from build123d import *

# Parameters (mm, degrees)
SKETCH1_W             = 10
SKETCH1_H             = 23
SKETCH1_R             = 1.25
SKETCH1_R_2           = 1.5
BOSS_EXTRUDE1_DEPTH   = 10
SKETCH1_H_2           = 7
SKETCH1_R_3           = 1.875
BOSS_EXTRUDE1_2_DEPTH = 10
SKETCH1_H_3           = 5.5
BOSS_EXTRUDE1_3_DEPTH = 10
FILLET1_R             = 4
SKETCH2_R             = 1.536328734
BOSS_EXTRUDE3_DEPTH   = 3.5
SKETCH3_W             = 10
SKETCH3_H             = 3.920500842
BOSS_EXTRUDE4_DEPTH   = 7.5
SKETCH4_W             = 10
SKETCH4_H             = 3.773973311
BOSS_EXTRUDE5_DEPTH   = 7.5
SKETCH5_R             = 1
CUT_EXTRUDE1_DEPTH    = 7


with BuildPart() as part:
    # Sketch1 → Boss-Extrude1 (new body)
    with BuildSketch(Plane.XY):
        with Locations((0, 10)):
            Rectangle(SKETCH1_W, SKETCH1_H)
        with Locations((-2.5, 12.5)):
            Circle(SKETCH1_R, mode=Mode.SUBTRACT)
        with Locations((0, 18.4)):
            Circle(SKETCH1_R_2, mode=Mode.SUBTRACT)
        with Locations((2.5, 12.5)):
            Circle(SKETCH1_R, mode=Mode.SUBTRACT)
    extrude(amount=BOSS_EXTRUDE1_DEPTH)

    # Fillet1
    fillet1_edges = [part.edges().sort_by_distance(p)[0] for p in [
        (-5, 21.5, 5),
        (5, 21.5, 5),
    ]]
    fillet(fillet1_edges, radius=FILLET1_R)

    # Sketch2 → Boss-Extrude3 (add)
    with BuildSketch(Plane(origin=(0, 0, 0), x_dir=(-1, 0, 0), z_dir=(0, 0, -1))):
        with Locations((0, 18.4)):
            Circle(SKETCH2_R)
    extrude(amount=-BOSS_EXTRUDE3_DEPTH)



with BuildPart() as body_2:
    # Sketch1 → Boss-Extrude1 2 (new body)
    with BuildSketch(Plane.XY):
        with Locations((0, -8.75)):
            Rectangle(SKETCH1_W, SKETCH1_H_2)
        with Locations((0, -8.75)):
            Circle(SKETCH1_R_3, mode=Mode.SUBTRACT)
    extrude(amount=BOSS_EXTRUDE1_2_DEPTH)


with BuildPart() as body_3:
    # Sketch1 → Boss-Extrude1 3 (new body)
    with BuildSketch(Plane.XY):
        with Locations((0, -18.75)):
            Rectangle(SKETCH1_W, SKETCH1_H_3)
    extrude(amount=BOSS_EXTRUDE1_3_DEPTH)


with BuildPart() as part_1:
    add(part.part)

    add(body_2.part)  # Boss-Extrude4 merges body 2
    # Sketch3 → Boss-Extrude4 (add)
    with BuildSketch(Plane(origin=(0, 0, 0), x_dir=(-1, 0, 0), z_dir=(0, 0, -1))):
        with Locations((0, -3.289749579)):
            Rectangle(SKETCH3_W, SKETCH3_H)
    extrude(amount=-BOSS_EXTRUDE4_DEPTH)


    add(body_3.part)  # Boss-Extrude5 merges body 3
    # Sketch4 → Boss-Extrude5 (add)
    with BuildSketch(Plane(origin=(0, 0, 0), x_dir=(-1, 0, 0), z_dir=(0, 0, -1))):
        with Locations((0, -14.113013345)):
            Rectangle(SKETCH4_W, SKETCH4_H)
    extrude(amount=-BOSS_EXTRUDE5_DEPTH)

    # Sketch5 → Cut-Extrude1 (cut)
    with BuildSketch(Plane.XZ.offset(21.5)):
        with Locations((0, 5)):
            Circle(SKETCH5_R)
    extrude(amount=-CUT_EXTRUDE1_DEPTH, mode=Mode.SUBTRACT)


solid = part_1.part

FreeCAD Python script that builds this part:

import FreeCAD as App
import Part
import Sketcher
from FreeCAD import Vector


def edges_at(feature, points):
    """Names of the edges that pass closest to the given points."""
    edges = feature.Shape.Edges
    near = lambda p: min(range(len(edges)), key=lambda i: edges[i].distToShape(Part.Vertex(*p))[0])
    return sorted({f"Edge{near(p) + 1}" for p in points})

doc = App.newDocument("Part")
params = doc.addObject("Spreadsheet::Sheet", "Params")
for row, (alias, value) in enumerate([
    ("sketch1_diameter", "3 mm"),
    ("sketch1_diameter2", "2.5 mm"),
    ("sketch1_width", "10 mm"),
    ("sketch1_height", "23 mm"),
    ("pad1_length", "10 mm"),
    ("fillet_radius", "4 mm"),
    ("pad2_length", "3.5 mm"),
    ("sketch3_diameter", "3.75 mm"),
    ("sketch3_width", "10 mm"),
    ("sketch3_height", "7 mm"),
    ("pad3_length", "10 mm"),
    ("sketch4_width", "10 mm"),
    ("sketch4_height", "5.5 mm"),
    ("pad4_length", "10 mm"),
    ("sketch5_width", "10 mm"),
    ("pad5_length", "7.5 mm"),
    ("sketch6_width", "10 mm"),
    ("pad6_length", "7.5 mm"),
    ("sketch7_diameter", "2 mm"),
    ("pocket1_length", "7 mm"),
], start=1):
    params.set(f"A{row}", alias)
    params.set(f"B{row}", "=" + value)
    params.setAlias(f"B{row}", alias)

body = doc.addObject("PartDesign::Body", "Body")

sketch1 = body.newObject("Sketcher::SketchObject", "Sketch")
sketch1.AttachmentSupport = (doc.getObject("XY_Plane"), [""])
sketch1.MapMode = "FlatFace"
sketch1.addGeometry([
    Part.LineSegment(Vector(-5, 21.5, 0), Vector(-5, -1.5, 0)),
    Part.LineSegment(Vector(-5, -1.5, 0), Vector(5, -1.5, 0)),
    Part.LineSegment(Vector(5, -1.5, 0), Vector(5, 21.5, 0)),
    Part.LineSegment(Vector(5, 21.5, 0), Vector(-5, 21.5, 0)),
    Part.Circle(Vector(-2.5, 12.5, 0), Vector(0, 0, 1), 1.2),
    Part.Circle(Vector(2.5, 12.5, 0), Vector(0, 0, 1), 1.2),
    Part.Circle(Vector(0, 18.4, 0), Vector(0, 0, 1), 1.5),
], False)
sketch1.addConstraint([
    Sketcher.Constraint("Coincident", 0, 2, 1, 1),
    Sketcher.Constraint("Coincident", 1, 2, 2, 1),
    Sketcher.Constraint("Coincident", 2, 2, 3, 1),
    Sketcher.Constraint("Coincident", 3, 2, 0, 1),
    Sketcher.Constraint("Vertical", 0),
    Sketcher.Constraint("Horizontal", 1),
    Sketcher.Constraint("Vertical", 2),
    Sketcher.Constraint("Horizontal", 3),
    Sketcher.Constraint("Equal", 4, 5),
    Sketcher.Constraint("Symmetric", 4, 3, 5, 3, -2),
    Sketcher.Constraint("PointOnObject", 6, 3, -2),
    Sketcher.Constraint("Diameter", 6, 3.0),
    Sketcher.Constraint("Diameter", 4, 2.5),
    Sketcher.Constraint("DistanceX", 1, 1, 1, 2, 10.0),
    Sketcher.Constraint("DistanceY", 0, 2, 0, 1, 23.0),
    Sketcher.Constraint("DistanceX", 0, 2, -1, 1, 5.0),
    Sketcher.Constraint("DistanceX", 4, 3, 5, 3, 5.0),
    Sketcher.Constraint("DistanceY", 0, 2, 4, 3, 14.0),
    Sketcher.Constraint("DistanceY", -1, 1, 4, 3, 12.5),
    Sketcher.Constraint("DistanceY", -1, 1, 6, 3, 18.4),
])
sketch1.setExpression("Constraints[11]", "Params.sketch1_diameter")
sketch1.setExpression("Constraints[12]", "Params.sketch1_diameter2")
sketch1.setExpression("Constraints[13]", "Params.sketch1_width")
sketch1.setExpression("Constraints[14]", "Params.sketch1_height")
pad1 = body.newObject("PartDesign::Pad", "Pad")
pad1.Profile = sketch1
pad1.setExpression("Length", "Params.pad1_length")
doc.recompute()

fillet = body.newObject("PartDesign::Fillet", "Fillet")
fillet.Base = (pad1, edges_at(pad1, [(-5, 21.5, 5), (5, 21.5, 5)]))
fillet.setExpression("Radius", "Params.fillet_radius")

sketch2 = body.newObject("Sketcher::SketchObject", "Sketch001")
sketch2.AttachmentSupport = (doc.getObject("XY_Plane"), [""])
sketch2.MapMode = "FlatFace"
sketch2.addGeometry(Part.Circle(Vector(0, 18.4, 0), Vector(0, 0, 1), 1.5), False)
sketch2.addConstraint([
    Sketcher.Constraint("PointOnObject", 0, 3, -2),
    Sketcher.Constraint("DistanceY", -1, 1, 0, 3, 18.4),
    Sketcher.Constraint("Diameter", 0, 3.072657),
])
pad2 = body.newObject("PartDesign::Pad", "Pad001")
pad2.Profile = sketch2
pad2.setExpression("Length", "Params.pad2_length")
body2 = doc.addObject("PartDesign::Body", "Body001")

sketch3 = body2.newObject("Sketcher::SketchObject", "Sketch002")
sketch3.AttachmentSupport = (doc.getObject("XY_Plane001"), [""])
sketch3.MapMode = "FlatFace"
sketch3.addGeometry([
    Part.LineSegment(Vector(-5, -5.2, 0), Vector(-5, -12.2, 0)),
    Part.LineSegment(Vector(-5, -12.2, 0), Vector(5, -12.2, 0)),
    Part.LineSegment(Vector(5, -12.2, 0), Vector(5, -5.2, 0)),
    Part.LineSegment(Vector(5, -5.2, 0), Vector(-5, -5.2, 0)),
    Part.Circle(Vector(0, -8.8, 0), Vector(0, 0, 1), 1.9),
], False)
sketch3.addConstraint([
    Sketcher.Constraint("Coincident", 0, 2, 1, 1),
    Sketcher.Constraint("Coincident", 1, 2, 2, 1),
    Sketcher.Constraint("Coincident", 2, 2, 3, 1),
    Sketcher.Constraint("Coincident", 3, 2, 0, 1),
    Sketcher.Constraint("Vertical", 0),
    Sketcher.Constraint("Horizontal", 1),
    Sketcher.Constraint("Vertical", 2),
    Sketcher.Constraint("Horizontal", 3),
    Sketcher.Constraint("PointOnObject", 4, 3, -2),
    Sketcher.Constraint("Diameter", 4, 3.75),
    Sketcher.Constraint("DistanceX", 1, 1, 1, 2, 10.0),
    Sketcher.Constraint("DistanceY", 0, 2, 0, 1, 7.0),
    Sketcher.Constraint("DistanceX", 0, 2, -1, 1, 5.0),
    Sketcher.Constraint("DistanceY", 0, 2, 4, 3, 3.5),
    Sketcher.Constraint("DistanceY", 4, 3, -1, 1, 8.75),
])
sketch3.setExpression("Constraints[9]", "Params.sketch3_diameter")
sketch3.setExpression("Constraints[10]", "Params.sketch3_width")
sketch3.setExpression("Constraints[11]", "Params.sketch3_height")
pad3 = body2.newObject("PartDesign::Pad", "Pad002")
pad3.Profile = sketch3
pad3.setExpression("Length", "Params.pad3_length")
body3 = doc.addObject("PartDesign::Body", "Body002")

sketch4 = body3.newObject("Sketcher::SketchObject", "Sketch003")
sketch4.AttachmentSupport = (doc.getObject("XY_Plane002"), [""])
sketch4.MapMode = "FlatFace"
sketch4.addGeometry([
    Part.LineSegment(Vector(-5, -16, 0), Vector(-5, -22, 0)),
    Part.LineSegment(Vector(-5, -22, 0), Vector(5, -22, 0)),
    Part.LineSegment(Vector(5, -22, 0), Vector(5, -16, 0)),
    Part.LineSegment(Vector(5, -16, 0), Vector(-5, -16, 0)),
], False)
sketch4.addConstraint([
    Sketcher.Constraint("Coincident", 0, 2, 1, 1),
    Sketcher.Constraint("Coincident", 1, 2, 2, 1),
    Sketcher.Constraint("Coincident", 2, 2, 3, 1),
    Sketcher.Constraint("Coincident", 3, 2, 0, 1),
    Sketcher.Constraint("Vertical", 0),
    Sketcher.Constraint("Horizontal", 1),
    Sketcher.Constraint("Vertical", 2),
    Sketcher.Constraint("Horizontal", 3),
    Sketcher.Constraint("DistanceX", 1, 1, 1, 2, 10.0),
    Sketcher.Constraint("DistanceY", 0, 2, 0, 1, 5.5),
    Sketcher.Constraint("DistanceX", 0, 2, -1, 1, 5.0),
    Sketcher.Constraint("DistanceY", 2, 2, -1, 1, 16.0),
])
sketch4.setExpression("Constraints[8]", "Params.sketch4_width")
sketch4.setExpression("Constraints[9]", "Params.sketch4_height")
pad4 = body3.newObject("PartDesign::Pad", "Pad003")
pad4.Profile = sketch4
pad4.setExpression("Length", "Params.pad4_length")
body.AllowCompound = True
doc.recompute()

boolean = body.newObject("PartDesign::Boolean", "Boolean")
boolean.Type = "Fuse"
boolean.addObjects([body2])

sketch5 = body.newObject("Sketcher::SketchObject", "Sketch004")
sketch5.AttachmentSupport = (doc.getObject("XY_Plane"), [""])
sketch5.MapMode = "FlatFace"
sketch5.addGeometry([
    Part.LineSegment(Vector(5, -1.3, 0), Vector(5, -5.2, 0)),
    Part.LineSegment(Vector(5, -5.2, 0), Vector(-5, -5.2, 0)),
    Part.LineSegment(Vector(-5, -5.2, 0), Vector(-5, -1.3, 0)),
    Part.LineSegment(Vector(-5, -1.3, 0), Vector(5, -1.3, 0)),
], False)
sketch5.addConstraint([
    Sketcher.Constraint("Coincident", 0, 2, 1, 1),
    Sketcher.Constraint("Coincident", 1, 2, 2, 1),
    Sketcher.Constraint("Coincident", 2, 2, 3, 1),
    Sketcher.Constraint("Coincident", 3, 2, 0, 1),
    Sketcher.Constraint("Vertical", 0),
    Sketcher.Constraint("Horizontal", 1),
    Sketcher.Constraint("Vertical", 2),
    Sketcher.Constraint("Horizontal", 3),
    Sketcher.Constraint("DistanceX", 1, 2, 1, 1, 10.0),
    Sketcher.Constraint("DistanceX", -1, 1, 0, 2, 5.0),
    Sketcher.Constraint("DistanceY", 0, 2, -1, 1, 5.25),
    Sketcher.Constraint("DistanceY", 0, 2, 0, 1, 3.920501),
])
sketch5.setExpression("Constraints[8]", "Params.sketch5_width")
pad5 = body.newObject("PartDesign::Pad", "Pad004")
pad5.Profile = sketch5
pad5.setExpression("Length", "Params.pad5_length")
doc.recompute()

boolean2 = body.newObject("PartDesign::Boolean", "Boolean001")
boolean2.Type = "Fuse"
boolean2.addObjects([body3])

sketch6 = body.newObject("Sketcher::SketchObject", "Sketch005")
sketch6.AttachmentSupport = (doc.getObject("XY_Plane"), [""])
sketch6.MapMode = "FlatFace"
sketch6.addGeometry([
    Part.LineSegment(Vector(5, -12.2, 0), Vector(5, -16, 0)),
    Part.LineSegment(Vector(5, -16, 0), Vector(-5, -16, 0)),
    Part.LineSegment(Vector(-5, -16, 0), Vector(-5, -12.2, 0)),
    Part.LineSegment(Vector(-5, -12.2, 0), Vector(5, -12.2, 0)),
], False)
sketch6.addConstraint([
    Sketcher.Constraint("Coincident", 0, 2, 1, 1),
    Sketcher.Constraint("Coincident", 1, 2, 2, 1),
    Sketcher.Constraint("Coincident", 2, 2, 3, 1),
    Sketcher.Constraint("Coincident", 3, 2, 0, 1),
    Sketcher.Constraint("Vertical", 0),
    Sketcher.Constraint("Horizontal", 1),
    Sketcher.Constraint("Vertical", 2),
    Sketcher.Constraint("Horizontal", 3),
    Sketcher.Constraint("DistanceX", 1, 2, 1, 1, 10.0),
    Sketcher.Constraint("DistanceX", -1, 1, 0, 2, 5.0),
    Sketcher.Constraint("DistanceY", 0, 2, -1, 1, 16.0),
    Sketcher.Constraint("DistanceY", 0, 2, 0, 1, 3.773973),
])
sketch6.setExpression("Constraints[8]", "Params.sketch6_width")
pad6 = body.newObject("PartDesign::Pad", "Pad005")
pad6.Profile = sketch6
pad6.setExpression("Length", "Params.pad6_length")

sketch7 = body.newObject("Sketcher::SketchObject", "Sketch006")
sketch7.AttachmentSupport = (doc.getObject("XZ_Plane"), [""])
sketch7.MapMode = "FlatFace"
sketch7.AttachmentOffset = App.Placement(Vector(0, 0, 21.5), App.Rotation())
sketch7.addGeometry(Part.Circle(Vector(0, 5, 0), Vector(0, 0, 1), 1), False)
sketch7.addConstraint([
    Sketcher.Constraint("PointOnObject", 0, 3, -2),
    Sketcher.Constraint("Diameter", 0, 2.0),
    Sketcher.Constraint("DistanceY", -1, 1, 0, 3, 5.0),
])
sketch7.setExpression("Constraints[1]", "Params.sketch7_diameter")
pocket1 = body.newObject("PartDesign::Pocket", "Pocket")
pocket1.Profile = sketch7
pocket1.setExpression("Length", "Params.pocket1_length")

doc.recompute()
